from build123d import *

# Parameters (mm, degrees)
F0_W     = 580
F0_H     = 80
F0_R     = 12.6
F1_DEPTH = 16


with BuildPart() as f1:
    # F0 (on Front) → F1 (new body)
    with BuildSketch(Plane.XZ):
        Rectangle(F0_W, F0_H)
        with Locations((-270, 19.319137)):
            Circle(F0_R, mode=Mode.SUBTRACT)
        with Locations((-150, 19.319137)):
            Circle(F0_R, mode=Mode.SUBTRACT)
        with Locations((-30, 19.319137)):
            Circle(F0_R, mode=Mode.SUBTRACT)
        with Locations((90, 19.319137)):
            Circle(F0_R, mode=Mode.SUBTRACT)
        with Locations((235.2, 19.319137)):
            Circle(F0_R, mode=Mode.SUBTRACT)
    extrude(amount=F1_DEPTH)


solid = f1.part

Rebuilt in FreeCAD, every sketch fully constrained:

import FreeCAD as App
import Part
import Sketcher
from FreeCAD import Vector
Q = App.Units.Quantity


def add_polygon(sketch, points):
    """Adds a closed chain of lines whose ends are joined by coincident constraints."""
    first, n = sketch.GeometryCount, len(points)
    for a, b in zip(points, points[1:] + points[:1]):
        sketch.addGeometry(Part.LineSegment(App.Vector(*a, 0), App.Vector(*b, 0)), False)
    for i in range(n):
        sketch.addConstraint(Sketcher.Constraint("Coincident", first + i, 2, first + (i + 1) % n, 1))

doc = App.newDocument("Part")
body = doc.addObject("PartDesign::Body", "Body")

sketch1 = body.newObject("Sketcher::SketchObject", "Sketch")
sketch1.AttachmentSupport = (doc.getObject("XZ_Plane"), [""])
sketch1.MapMode = "FlatFace"
add_polygon(sketch1, [(-290, 40), (-290, -40), (290, -40), (290, 40)])
sketch1.addGeometry(Part.Circle(Vector(-270, 19, 0), Vector(0, 0, 1), 13), False)
sketch1.addGeometry(Part.Circle(Vector(-150, 19, 0), Vector(0, 0, 1), 13), False)
sketch1.addGeometry(Part.Circle(Vector(-30, 19, 0), Vector(0, 0, 1), 13), False)
sketch1.addGeometry(Part.Circle(Vector(90, 19, 0), Vector(0, 0, 1), 13), False)
sketch1.addGeometry(Part.Circle(Vector(235, 19, 0), Vector(0, 0, 1), 13), False)
sketch1.addConstraint([
    Sketcher.Constraint("Vertical", 0),
    Sketcher.Constraint("Horizontal", 1),
    Sketcher.Constraint("Vertical", 2),
    Sketcher.Constraint("Horizontal", 3),
    Sketcher.Constraint("Equal", 4, 5),
    Sketcher.Constraint("Equal", 5, 6),
    Sketcher.Constraint("Equal", 6, 7),
    Sketcher.Constraint("Equal", 7, 8),
    Sketcher.Constraint("Symmetric", 0, 2, 2, 2, -1, 1),
    Sketcher.Constraint("Horizontal", 4, 3, 5, 3),
    Sketcher.Constraint("Horizontal", 5, 3, 6, 3),
    Sketcher.Constraint("Horizontal", 6, 3, 7, 3),
    Sketcher.Constraint("Horizontal", 7, 3, 8, 3),
    Sketcher.Constraint("Diameter", 4, Q("25.2 mm")),
    Sketcher.Constraint("DistanceX", 1, 1, 1, 2, Q("580 mm")),
    Sketcher.Constraint("DistanceY", 0, 2, 0, 1, Q("80 mm")),
    Sketcher.Constraint("DistanceX", 4, 3, -1, 1, Q("270 mm")),
    Sketcher.Constraint("DistanceX", 5, 3, -1, 1, Q("150 mm")),
    Sketcher.Constraint("DistanceX", 6, 3, -1, 1, Q("30 mm")),
    Sketcher.Constraint("DistanceX", -1, 1, 7, 3, Q("90 mm")),
    Sketcher.Constraint("DistanceX", -1, 1, 8, 3, Q("235.2 mm")),
    Sketcher.Constraint("DistanceY", -1, 1, 4, 3, Q("19.319137 mm")),
])
pad1 = body.newObject("PartDesign::Pad", "Pad")
pad1.Profile = sketch1
pad1.Length = 16

doc.recompute()
